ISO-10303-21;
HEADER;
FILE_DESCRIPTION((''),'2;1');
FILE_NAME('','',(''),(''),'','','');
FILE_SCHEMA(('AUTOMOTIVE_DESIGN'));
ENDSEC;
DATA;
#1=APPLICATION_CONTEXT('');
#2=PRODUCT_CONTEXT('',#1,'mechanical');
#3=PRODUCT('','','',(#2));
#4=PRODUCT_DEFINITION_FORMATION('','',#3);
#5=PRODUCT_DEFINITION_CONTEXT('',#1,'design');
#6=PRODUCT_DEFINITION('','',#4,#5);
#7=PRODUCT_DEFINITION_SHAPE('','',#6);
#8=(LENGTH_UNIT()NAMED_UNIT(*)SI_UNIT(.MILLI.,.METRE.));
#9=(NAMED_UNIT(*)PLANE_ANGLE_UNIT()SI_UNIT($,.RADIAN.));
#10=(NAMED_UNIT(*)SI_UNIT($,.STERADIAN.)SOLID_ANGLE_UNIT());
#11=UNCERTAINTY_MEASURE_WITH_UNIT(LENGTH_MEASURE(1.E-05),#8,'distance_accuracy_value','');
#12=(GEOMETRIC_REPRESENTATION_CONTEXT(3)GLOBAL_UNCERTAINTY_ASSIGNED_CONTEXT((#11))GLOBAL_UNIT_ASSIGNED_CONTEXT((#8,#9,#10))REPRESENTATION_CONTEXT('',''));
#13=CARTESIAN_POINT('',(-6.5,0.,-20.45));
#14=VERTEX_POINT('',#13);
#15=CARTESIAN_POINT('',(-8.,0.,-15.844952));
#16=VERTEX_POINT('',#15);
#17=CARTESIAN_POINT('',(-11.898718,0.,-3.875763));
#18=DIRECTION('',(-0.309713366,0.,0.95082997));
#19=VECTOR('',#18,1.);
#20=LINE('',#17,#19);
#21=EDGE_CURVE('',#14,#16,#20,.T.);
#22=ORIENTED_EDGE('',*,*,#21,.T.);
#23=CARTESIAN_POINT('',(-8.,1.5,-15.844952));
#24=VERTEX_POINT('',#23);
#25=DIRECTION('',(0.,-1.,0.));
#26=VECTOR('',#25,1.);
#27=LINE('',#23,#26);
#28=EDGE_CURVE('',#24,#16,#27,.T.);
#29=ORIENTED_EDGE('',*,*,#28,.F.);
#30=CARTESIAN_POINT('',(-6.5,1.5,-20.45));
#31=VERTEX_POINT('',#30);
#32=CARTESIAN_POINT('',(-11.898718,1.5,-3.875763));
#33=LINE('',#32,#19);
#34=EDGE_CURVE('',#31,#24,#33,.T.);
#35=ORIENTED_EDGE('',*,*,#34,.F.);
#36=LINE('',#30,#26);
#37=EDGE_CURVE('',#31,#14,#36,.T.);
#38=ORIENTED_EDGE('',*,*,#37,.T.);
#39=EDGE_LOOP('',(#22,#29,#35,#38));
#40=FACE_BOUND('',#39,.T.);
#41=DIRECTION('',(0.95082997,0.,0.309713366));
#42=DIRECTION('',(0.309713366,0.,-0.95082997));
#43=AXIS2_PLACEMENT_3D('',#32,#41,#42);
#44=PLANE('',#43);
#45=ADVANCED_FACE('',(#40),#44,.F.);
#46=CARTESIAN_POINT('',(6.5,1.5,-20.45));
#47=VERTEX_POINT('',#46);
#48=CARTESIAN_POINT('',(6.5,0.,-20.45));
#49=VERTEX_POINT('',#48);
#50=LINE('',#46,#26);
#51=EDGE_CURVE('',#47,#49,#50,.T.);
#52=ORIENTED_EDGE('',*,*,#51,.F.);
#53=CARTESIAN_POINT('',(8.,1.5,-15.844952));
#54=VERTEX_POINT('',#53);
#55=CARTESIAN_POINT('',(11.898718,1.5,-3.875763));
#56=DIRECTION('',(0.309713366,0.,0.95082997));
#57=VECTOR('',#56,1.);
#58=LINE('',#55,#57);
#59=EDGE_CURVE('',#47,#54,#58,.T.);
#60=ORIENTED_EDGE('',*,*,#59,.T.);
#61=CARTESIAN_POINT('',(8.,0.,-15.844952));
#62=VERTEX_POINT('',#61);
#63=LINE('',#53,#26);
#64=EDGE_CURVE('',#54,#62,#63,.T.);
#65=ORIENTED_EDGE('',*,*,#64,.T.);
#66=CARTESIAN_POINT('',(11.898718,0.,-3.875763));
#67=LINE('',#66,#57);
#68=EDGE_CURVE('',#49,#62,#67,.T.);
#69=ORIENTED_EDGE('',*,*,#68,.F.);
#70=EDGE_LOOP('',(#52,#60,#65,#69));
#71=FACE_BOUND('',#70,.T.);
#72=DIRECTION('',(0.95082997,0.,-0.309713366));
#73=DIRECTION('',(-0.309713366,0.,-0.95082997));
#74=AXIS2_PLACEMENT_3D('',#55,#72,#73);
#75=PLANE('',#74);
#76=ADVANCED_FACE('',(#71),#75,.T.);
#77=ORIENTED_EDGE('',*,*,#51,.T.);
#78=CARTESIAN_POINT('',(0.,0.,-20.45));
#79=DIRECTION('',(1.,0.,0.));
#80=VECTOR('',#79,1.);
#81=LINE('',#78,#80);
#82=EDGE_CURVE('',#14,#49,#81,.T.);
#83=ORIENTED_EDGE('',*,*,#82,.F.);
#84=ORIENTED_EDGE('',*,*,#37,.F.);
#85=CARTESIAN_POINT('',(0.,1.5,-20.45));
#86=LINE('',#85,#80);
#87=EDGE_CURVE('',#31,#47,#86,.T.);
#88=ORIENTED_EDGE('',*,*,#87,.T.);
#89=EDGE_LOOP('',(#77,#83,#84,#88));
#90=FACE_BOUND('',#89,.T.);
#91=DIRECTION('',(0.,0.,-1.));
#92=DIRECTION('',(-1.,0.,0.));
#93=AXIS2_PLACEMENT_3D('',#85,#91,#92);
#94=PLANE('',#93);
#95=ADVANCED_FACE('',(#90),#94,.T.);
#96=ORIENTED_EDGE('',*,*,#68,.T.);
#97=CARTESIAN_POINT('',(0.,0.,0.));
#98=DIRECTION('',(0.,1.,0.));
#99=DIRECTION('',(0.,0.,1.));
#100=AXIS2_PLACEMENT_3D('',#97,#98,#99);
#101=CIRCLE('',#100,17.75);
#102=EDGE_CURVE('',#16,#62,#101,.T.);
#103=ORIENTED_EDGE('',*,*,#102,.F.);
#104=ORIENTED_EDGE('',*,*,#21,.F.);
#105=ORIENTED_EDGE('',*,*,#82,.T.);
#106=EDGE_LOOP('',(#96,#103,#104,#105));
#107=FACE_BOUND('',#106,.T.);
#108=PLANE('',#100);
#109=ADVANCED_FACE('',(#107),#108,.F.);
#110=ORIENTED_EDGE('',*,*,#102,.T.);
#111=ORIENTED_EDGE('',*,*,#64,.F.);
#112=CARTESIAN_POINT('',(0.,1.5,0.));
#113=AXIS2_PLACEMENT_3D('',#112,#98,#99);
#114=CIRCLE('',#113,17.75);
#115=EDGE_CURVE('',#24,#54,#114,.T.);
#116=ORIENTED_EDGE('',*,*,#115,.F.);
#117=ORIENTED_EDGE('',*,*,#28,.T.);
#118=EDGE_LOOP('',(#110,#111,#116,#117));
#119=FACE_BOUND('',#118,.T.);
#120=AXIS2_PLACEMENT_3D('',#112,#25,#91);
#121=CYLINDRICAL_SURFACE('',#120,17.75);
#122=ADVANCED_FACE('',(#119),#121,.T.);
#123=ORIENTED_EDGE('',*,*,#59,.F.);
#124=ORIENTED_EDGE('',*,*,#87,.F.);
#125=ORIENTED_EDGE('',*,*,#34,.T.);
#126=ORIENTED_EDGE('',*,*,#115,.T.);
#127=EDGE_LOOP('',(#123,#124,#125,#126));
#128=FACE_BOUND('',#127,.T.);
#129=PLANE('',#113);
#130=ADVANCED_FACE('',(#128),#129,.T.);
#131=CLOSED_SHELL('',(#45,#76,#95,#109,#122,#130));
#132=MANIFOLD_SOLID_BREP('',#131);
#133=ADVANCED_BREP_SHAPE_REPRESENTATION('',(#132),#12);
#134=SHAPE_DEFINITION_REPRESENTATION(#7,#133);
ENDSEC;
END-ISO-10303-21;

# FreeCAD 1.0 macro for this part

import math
import FreeCAD as App
import Part
import Sketcher
from FreeCAD import Vector
Q = App.Units.Quantity

doc = App.newDocument("Part")
body = doc.addObject("PartDesign::Body", "Body")

sketch1 = doc.addObject("Sketcher::SketchObject", "Sketch")
body.addObject(sketch1)
sketch1.AttachmentSupport = (doc.XZ_Plane, [""])
sketch1.MapMode = "FlatFace"
sketch1.addGeometry([
    Part.LineSegment(Vector(6.5, -20.45, 0), Vector(-6.5, -20.45, 0)),
    Part.LineSegment(Vector(-6.5, -20.45, 0), Vector(-8, -15.844952, 0)),
    Part.ArcOfCircle(Part.Circle(Vector(0, 0, 0), Vector(0, 0, 1), 17.75), math.radians(-63.211125), math.radians(243.211125)),
    Part.LineSegment(Vector(8, -15.844952, 0), Vector(6.5, -20.45, 0)),
], False)
sketch1.addConstraint([
    Sketcher.Constraint("Coincident", 0, 2, 1, 1),
    Sketcher.Constraint("Coincident", 1, 2, 2, 2),
    Sketcher.Constraint("Coincident", 2, 1, 3, 1),
    Sketcher.Constraint("Coincident", 3, 2, 0, 1),
    Sketcher.Constraint("Horizontal", 0),
    Sketcher.Constraint("Coincident", 2, 3, -1, 1),
    Sketcher.Constraint("Horizontal", 1, 2, 2, 1),
    Sketcher.Constraint("Equal", 1, 3),
    Sketcher.Constraint("DistanceX", 0, 2, 0, 1, Q("13 mm")),
    Sketcher.Constraint("Radius", 2, Q("17.75 mm")),
    Sketcher.Constraint("DistanceX", 1, 2, -1, 1, Q("8 mm")),
    Sketcher.Constraint("DistanceY", 0, 2, -1, 1, Q("20.45 mm")),
])
pad1 = doc.addObject("PartDesign::Pad", "Pad")
body.addObject(pad1)
pad1.Profile = sketch1
pad1.Length = 1.5
pad1.Reversed = True

doc.recompute()
